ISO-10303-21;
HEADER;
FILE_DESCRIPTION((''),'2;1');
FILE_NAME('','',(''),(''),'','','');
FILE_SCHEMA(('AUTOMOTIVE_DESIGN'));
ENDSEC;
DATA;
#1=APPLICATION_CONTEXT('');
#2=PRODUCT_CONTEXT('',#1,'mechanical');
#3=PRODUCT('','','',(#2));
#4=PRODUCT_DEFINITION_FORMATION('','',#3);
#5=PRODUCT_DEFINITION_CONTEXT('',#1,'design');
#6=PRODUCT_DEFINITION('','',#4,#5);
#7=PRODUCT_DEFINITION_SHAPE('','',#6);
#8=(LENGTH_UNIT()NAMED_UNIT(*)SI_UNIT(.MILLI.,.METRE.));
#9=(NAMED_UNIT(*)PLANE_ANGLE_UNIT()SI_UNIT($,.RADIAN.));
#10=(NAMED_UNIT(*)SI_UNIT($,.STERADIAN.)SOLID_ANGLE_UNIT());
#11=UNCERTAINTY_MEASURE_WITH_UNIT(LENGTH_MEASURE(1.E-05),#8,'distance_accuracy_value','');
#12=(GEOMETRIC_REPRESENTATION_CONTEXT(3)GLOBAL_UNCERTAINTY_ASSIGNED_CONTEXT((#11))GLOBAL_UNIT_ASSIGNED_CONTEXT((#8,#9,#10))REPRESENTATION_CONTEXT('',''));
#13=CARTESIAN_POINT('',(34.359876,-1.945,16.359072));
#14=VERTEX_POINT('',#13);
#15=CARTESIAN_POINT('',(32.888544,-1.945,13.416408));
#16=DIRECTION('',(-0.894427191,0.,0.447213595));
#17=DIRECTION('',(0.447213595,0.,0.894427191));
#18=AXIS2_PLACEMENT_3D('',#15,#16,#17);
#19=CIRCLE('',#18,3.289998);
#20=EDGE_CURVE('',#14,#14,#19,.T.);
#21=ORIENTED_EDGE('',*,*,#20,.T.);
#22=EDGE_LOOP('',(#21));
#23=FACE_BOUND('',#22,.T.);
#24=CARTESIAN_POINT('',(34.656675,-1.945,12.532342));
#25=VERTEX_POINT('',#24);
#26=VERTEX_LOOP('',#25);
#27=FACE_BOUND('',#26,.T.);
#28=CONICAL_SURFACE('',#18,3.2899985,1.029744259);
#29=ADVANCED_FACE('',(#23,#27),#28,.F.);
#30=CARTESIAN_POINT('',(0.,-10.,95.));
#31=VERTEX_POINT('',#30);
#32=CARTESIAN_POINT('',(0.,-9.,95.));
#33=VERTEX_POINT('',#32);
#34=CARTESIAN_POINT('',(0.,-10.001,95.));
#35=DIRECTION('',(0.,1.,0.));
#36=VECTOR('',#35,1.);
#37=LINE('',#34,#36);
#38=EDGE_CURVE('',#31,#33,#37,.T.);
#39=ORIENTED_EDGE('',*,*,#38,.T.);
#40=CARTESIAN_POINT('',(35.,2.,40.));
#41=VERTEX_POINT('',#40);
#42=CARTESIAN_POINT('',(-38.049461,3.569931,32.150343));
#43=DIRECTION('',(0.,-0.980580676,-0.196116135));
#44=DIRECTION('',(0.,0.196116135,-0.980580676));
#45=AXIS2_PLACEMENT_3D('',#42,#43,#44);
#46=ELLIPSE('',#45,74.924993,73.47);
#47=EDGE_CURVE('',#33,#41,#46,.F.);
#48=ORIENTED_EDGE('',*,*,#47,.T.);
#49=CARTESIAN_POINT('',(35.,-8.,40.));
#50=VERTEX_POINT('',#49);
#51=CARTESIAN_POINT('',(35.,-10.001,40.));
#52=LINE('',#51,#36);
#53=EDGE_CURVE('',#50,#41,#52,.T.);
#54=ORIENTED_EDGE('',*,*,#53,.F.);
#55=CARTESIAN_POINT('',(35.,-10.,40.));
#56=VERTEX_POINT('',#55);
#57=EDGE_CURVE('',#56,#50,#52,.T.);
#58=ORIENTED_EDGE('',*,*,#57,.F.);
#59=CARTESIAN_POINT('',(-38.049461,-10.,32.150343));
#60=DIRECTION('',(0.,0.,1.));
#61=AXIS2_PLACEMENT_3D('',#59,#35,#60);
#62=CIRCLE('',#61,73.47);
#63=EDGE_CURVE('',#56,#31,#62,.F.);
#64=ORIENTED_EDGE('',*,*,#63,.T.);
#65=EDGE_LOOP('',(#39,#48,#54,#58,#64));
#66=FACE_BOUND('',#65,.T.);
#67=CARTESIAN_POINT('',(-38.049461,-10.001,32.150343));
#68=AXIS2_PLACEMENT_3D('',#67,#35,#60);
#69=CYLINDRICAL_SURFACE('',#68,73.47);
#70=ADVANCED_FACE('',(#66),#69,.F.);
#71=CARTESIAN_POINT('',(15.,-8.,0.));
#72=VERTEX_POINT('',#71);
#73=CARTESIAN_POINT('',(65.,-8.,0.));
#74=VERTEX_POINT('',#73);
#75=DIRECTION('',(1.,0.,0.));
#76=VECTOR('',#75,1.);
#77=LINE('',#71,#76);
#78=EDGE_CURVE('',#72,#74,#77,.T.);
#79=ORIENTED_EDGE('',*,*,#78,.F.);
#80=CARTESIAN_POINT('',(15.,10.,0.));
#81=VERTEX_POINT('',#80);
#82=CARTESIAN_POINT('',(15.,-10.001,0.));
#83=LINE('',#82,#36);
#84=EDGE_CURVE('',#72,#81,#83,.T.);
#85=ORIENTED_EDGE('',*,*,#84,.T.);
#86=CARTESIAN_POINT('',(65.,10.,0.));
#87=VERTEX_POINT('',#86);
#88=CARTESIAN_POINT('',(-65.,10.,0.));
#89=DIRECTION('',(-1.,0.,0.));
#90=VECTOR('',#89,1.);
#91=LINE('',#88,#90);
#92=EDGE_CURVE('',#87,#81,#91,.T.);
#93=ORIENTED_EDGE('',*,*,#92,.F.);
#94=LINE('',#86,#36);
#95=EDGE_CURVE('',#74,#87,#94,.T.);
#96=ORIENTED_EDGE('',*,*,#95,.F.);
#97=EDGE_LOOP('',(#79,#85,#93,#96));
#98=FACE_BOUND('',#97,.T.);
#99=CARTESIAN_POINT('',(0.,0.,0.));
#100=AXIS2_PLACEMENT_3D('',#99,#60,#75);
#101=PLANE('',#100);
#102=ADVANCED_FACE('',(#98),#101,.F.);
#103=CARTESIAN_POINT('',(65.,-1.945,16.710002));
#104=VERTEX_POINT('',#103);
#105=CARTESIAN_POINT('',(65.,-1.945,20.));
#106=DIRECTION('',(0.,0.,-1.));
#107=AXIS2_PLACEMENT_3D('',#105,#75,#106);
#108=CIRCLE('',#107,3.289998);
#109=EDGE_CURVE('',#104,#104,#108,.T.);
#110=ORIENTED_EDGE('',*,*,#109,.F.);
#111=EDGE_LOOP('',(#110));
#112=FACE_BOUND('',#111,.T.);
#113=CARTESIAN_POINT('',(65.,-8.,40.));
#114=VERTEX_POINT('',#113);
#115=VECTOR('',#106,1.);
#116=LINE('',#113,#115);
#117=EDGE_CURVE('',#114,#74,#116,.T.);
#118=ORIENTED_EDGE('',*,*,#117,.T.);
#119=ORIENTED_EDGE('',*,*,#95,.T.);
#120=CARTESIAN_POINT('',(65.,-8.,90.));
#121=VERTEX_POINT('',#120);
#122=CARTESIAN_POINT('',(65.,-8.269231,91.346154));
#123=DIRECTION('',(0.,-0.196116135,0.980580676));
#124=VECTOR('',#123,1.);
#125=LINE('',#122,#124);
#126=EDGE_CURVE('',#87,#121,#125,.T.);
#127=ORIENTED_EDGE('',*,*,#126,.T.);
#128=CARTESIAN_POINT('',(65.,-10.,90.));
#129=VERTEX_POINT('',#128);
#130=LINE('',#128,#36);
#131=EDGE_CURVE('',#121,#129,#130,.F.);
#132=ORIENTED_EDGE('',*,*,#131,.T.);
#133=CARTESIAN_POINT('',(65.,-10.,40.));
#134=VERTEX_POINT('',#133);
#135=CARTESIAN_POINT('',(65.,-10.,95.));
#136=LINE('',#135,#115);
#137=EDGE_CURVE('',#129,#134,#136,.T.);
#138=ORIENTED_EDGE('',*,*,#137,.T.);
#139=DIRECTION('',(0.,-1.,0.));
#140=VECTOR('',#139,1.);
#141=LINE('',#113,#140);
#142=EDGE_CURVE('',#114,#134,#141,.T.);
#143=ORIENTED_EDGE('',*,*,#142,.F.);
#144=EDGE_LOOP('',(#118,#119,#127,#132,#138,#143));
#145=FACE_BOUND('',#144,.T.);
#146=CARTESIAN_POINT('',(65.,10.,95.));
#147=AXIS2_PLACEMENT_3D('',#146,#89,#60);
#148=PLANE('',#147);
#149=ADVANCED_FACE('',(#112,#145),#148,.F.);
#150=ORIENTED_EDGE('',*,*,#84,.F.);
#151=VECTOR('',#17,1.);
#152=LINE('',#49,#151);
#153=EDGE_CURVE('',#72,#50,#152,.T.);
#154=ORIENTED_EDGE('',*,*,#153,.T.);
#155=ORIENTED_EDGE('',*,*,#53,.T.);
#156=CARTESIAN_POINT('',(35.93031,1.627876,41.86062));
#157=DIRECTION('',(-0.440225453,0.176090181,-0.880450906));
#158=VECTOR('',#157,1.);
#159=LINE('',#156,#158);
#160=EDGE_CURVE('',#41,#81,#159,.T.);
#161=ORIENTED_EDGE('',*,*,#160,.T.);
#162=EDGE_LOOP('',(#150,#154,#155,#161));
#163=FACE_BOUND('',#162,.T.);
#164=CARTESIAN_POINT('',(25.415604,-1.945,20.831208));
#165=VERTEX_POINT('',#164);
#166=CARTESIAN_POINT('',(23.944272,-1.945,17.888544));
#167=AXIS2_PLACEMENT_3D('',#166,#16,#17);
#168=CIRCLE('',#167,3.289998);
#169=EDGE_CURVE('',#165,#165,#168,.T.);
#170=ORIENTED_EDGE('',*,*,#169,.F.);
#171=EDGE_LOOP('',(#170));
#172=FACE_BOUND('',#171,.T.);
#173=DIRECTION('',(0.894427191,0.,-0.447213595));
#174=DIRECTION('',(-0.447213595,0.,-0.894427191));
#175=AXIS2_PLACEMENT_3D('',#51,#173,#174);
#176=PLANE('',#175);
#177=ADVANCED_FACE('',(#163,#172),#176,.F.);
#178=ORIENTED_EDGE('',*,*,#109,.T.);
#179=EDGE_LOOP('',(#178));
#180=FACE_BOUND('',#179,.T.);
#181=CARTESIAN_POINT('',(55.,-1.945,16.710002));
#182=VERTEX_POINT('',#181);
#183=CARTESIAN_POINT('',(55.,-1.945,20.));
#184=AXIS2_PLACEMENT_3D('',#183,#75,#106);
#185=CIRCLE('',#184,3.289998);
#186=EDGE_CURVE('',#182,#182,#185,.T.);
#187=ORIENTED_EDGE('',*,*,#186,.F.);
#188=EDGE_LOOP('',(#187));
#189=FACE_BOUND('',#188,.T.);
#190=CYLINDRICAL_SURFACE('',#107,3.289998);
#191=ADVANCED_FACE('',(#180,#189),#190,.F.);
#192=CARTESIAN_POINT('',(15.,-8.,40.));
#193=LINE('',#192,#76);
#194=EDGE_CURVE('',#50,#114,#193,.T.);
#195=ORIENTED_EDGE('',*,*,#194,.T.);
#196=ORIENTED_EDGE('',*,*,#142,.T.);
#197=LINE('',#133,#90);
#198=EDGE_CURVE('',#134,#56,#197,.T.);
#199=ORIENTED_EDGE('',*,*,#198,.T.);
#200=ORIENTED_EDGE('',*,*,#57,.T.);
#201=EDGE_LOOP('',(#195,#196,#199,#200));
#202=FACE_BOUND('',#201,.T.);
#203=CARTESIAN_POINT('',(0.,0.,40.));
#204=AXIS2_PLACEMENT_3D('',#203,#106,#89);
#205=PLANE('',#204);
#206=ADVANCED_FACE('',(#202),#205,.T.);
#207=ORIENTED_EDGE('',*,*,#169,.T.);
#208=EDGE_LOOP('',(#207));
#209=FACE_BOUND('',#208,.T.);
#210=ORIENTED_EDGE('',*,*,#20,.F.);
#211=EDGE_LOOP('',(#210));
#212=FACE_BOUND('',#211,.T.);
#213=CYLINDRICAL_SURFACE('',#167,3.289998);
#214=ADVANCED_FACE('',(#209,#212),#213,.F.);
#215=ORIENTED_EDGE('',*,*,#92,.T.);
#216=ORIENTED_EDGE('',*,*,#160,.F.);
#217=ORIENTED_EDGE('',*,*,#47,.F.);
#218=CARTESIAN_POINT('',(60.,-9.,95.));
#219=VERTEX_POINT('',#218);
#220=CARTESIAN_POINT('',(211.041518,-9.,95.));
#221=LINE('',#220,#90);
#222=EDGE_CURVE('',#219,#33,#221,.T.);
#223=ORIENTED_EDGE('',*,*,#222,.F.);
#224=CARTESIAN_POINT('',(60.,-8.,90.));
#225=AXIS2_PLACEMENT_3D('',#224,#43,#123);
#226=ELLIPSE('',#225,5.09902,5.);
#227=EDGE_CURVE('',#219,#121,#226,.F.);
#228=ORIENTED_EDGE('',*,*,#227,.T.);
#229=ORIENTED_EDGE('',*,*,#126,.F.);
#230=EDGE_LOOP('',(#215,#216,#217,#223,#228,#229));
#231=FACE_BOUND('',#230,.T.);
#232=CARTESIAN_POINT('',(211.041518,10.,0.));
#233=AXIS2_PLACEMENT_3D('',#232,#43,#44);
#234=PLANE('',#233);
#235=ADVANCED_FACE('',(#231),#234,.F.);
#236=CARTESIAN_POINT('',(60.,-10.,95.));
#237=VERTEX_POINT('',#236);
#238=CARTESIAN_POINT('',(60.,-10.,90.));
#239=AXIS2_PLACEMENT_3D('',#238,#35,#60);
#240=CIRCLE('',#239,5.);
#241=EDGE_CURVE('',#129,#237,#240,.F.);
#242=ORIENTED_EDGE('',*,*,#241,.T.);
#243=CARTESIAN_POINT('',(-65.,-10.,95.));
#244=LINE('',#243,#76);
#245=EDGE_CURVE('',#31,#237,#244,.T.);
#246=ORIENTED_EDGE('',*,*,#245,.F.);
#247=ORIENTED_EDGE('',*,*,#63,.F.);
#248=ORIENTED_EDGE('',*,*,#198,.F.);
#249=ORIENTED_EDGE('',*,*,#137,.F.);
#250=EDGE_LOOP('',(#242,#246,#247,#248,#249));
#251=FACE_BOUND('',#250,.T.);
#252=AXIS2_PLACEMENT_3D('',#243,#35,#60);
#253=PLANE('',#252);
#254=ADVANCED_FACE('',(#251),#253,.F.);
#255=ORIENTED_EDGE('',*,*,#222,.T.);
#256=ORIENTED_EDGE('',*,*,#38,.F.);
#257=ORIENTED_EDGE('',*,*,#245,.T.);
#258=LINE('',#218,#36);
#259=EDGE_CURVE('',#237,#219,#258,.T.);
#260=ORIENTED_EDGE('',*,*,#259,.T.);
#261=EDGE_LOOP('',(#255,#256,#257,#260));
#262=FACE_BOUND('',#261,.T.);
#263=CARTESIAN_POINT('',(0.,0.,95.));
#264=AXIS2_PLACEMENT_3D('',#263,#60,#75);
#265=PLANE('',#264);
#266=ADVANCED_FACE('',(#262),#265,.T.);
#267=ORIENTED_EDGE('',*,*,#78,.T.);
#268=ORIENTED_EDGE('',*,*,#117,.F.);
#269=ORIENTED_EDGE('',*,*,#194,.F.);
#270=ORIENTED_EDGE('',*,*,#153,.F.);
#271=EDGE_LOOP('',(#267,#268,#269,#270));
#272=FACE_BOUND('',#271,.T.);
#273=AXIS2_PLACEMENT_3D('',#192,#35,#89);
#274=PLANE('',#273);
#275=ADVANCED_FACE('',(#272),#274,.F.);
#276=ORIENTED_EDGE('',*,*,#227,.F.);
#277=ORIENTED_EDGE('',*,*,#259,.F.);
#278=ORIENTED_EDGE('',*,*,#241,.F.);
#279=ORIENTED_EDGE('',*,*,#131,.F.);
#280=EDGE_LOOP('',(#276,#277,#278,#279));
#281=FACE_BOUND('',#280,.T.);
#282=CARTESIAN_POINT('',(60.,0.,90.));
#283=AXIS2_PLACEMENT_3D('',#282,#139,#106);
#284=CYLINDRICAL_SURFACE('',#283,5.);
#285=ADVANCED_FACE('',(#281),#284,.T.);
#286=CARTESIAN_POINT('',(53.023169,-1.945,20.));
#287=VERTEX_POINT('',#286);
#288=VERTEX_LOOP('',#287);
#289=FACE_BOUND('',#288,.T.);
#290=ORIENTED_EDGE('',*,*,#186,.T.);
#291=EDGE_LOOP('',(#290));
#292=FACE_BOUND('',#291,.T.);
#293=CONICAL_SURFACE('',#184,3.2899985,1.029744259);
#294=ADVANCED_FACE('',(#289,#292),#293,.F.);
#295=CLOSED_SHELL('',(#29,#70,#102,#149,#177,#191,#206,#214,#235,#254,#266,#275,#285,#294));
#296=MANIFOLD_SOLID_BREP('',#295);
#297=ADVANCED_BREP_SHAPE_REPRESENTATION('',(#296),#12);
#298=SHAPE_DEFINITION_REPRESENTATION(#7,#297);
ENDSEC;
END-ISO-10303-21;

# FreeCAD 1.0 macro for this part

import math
import FreeCAD as App
import Part
import Sketcher


def edges_at(feature, points):
    """Names of the edges that pass closest to the given points."""
    edges = feature.Shape.Edges
    near = lambda p: min(range(len(edges)), key=lambda i: edges[i].distToShape(Part.Vertex(*p))[0])
    return sorted({f"Edge{near(p) + 1}" for p in points})

doc = App.newDocument("Part")
body = doc.addObject("PartDesign::Body", "Body")

# Sketch on XY plane
sketch1 = body.newObject("Sketcher::SketchObject", "Sketch")
sketch1.AttachmentSupport = (doc.getObject("XY_Plane"), [""])
sketch1.MapMode = "FlatFace"
sketch1.addGeometry([
    Part.LineSegment(App.Vector(-65, 10, 0), App.Vector(-65, -10, 0)),
    Part.LineSegment(App.Vector(-65, -10, 0), App.Vector(65, -10, 0)),
    Part.LineSegment(App.Vector(65, -10, 0), App.Vector(65, 10, 0)),
    Part.LineSegment(App.Vector(65, 10, 0), App.Vector(-65, 10, 0)),
], False)
sketch1.addConstraint([
    Sketcher.Constraint("Coincident", 0, 2, 1, 1),
    Sketcher.Constraint("Coincident", 1, 2, 2, 1),
    Sketcher.Constraint("Coincident", 2, 2, 3, 1),
    Sketcher.Constraint("Coincident", 3, 2, 0, 1),
    Sketcher.Constraint("Vertical", 0),
    Sketcher.Constraint("Horizontal", 1),
    Sketcher.Constraint("Vertical", 2),
    Sketcher.Constraint("Horizontal", 3),
    Sketcher.Constraint("Symmetric", 0, 2, 2, 2, -1, 1),
    Sketcher.Constraint("DistanceX", 1, 1, 1, 2, 130.0),
    Sketcher.Constraint("DistanceY", 0, 2, 0, 1, 20.0),
])
pad1 = body.newObject("PartDesign::Pad", "Pad")
pad1.Profile = sketch1
pad1.Length = 95

# Sketch on XZ plane
sketch2 = body.newObject("Sketcher::SketchObject", "Sketch001")
sketch2.AttachmentSupport = (doc.getObject("XZ_Plane"), [""])
sketch2.MapMode = "FlatFace"
sketch2.AttachmentOffset = App.Placement(App.Vector(0, 0, -10), App.Rotation())
sketch2.addGeometry([
    Part.LineSegment(App.Vector(15, 0, 0), App.Vector(-65, 0, 0)),  # 0
    Part.LineSegment(App.Vector(-65, 0, 0), App.Vector(-65, 95, 0)),  # 1
    Part.LineSegment(App.Vector(-65, 95, 0), App.Vector(0, 95, 0)),  # 2
    Part.ArcOfCircle(Part.Circle(App.Vector(-38, 32, 0), App.Vector(0, 0, 1), 73), math.radians(6), math.radians(59)),  # 3
    Part.LineSegment(App.Vector(35, 40, 0), App.Vector(15, 0, 0)),  # 4
], False)
sketch2.addConstraint([
    Sketcher.Constraint("Coincident", 0, 2, 1, 1),
    Sketcher.Constraint("Coincident", 1, 2, 2, 1),
    Sketcher.Constraint("Coincident", 2, 2, 3, 2),
    Sketcher.Constraint("Coincident", 3, 1, 4, 1),
    Sketcher.Constraint("Coincident", 4, 2, 0, 1),
    Sketcher.Constraint("Horizontal", 0),
    Sketcher.Constraint("Vertical", 1),
    Sketcher.Constraint("Horizontal", 2),
    Sketcher.Constraint("PointOnObject", 0, 2, -1),
    Sketcher.Constraint("PointOnObject", 2, 2, -2),
    Sketcher.Constraint("DistanceX", 0, 2, 0, 1, 80.0),
    Sketcher.Constraint("DistanceX", 2, 1, 2, 2, 65.0),
    Sketcher.Constraint("DistanceY", 1, 1, 1, 2, 95.0),
    Sketcher.Constraint("Radius", 3, 73.47),
    Sketcher.Constraint("DistanceX", -1, 1, 3, 1, 35.0),
    Sketcher.Constraint("DistanceY", -1, 1, 3, 1, 40.0),
])
pocket1 = body.newObject("PartDesign::Pocket", "Pocket")
pocket1.Profile = sketch2
pocket1.Type = "UpToFirst"
pocket1.Reversed = True

# Sketch on YZ plane
sketch3 = body.newObject("Sketcher::SketchObject", "Sketch002")
sketch3.AttachmentSupport = (doc.getObject("YZ_Plane"), [""])
sketch3.MapMode = "FlatFace"
sketch3.AttachmentOffset = App.Placement(App.Vector(0, 0, 65), App.Rotation())
sketch3.addGeometry([
    Part.LineSegment(App.Vector(-49, 295, 0), App.Vector(50, -200, 0)),
    Part.LineSegment(App.Vector(50, -200, 0), App.Vector(450, -120, 0)),
    Part.LineSegment(App.Vector(450, -120, 0), App.Vector(351, 375, 0)),
    Part.LineSegment(App.Vector(351, 375, 0), App.Vector(-49, 295, 0)),
], False)
sketch3.addConstraint([
    Sketcher.Constraint("Coincident", 0, 2, 1, 1),
    Sketcher.Constraint("Coincident", 1, 2, 2, 1),
    Sketcher.Constraint("Coincident", 2, 2, 3, 1),
    Sketcher.Constraint("Coincident", 3, 2, 0, 1),
    Sketcher.Constraint("Perpendicular", 0, 1),
    Sketcher.Constraint("Perpendicular", 1, 2),
    Sketcher.Constraint("Perpendicular", 2, 3),
    Sketcher.Constraint("DistanceY", 1, 2, -1, 1, 120.120081),
    Sketcher.Constraint("DistanceX", -1, 1, 2, 2, 351.360242),
    Sketcher.Constraint("DistanceY", -1, 1, 2, 2, 375.280188),
    Sketcher.Constraint("DistanceX", 0, 2, 1, 2, 400.400269),
    Sketcher.Constraint("Distance", 0, 505.211128),
])
pocket2 = body.newObject("PartDesign::Pocket", "Pocket001")
pocket2.Profile = sketch3
pocket2.Type = "ThroughAll"
pocket2.Midplane = True

# Sketch on YZ plane
sketch4 = body.newObject("Sketcher::SketchObject", "Sketch003")
sketch4.AttachmentSupport = (doc.getObject("YZ_Plane"), [""])
sketch4.MapMode = "FlatFace"
sketch4.AttachmentOffset = App.Placement(App.Vector(0, 0, 65), App.Rotation())
sketch4.addGeometry(Part.Circle(App.Vector(-1.9, 20, 0), App.Vector(0, 0, 1), 3.3), False)
sketch4.addConstraint([
    Sketcher.Constraint("DistanceY", -1, 1, 0, 3, 20.0),
    Sketcher.Constraint("Diameter", 0, 6.579997),
    Sketcher.Constraint("DistanceX", 0, 3, -1, 1, 1.945),
])
doc.recompute()
hole = body.newObject("PartDesign::Hole", "Hole")
hole.Profile = sketch4
hole.ThreadType = "None"
hole.Diameter = 6.579997
hole.DepthType = "Dimension"
hole.Depth = 10
hole.DrillPoint = "Angled"
hole.DrillPointAngle = 118

# Sketch on an angled plane
sketch5 = body.newObject("Sketcher::SketchObject", "Sketch004")
sketch5.Placement = App.Placement(App.Vector(12, 0, -6), App.Rotation(App.Vector(0.447213595, 0, 0.894427191), App.Vector(0, 1, 0), App.Vector(-0.894427191, 0, 0.447213595), "ZXY"))
sketch5.addGeometry(Part.Circle(App.Vector(26.7, -1.9, 0), App.Vector(0, 0, 1), 3.3), False)
sketch5.addConstraint([
    Sketcher.Constraint("Diameter", 0, 6.579997),
    Sketcher.Constraint("DistanceY", 0, 3, -1, 1, 1.945),
    Sketcher.Constraint("DistanceX", -1, 1, 0, 3, 26.708204),
])
doc.recompute()
hole2 = body.newObject("PartDesign::Hole", "Hole001")
hole2.Profile = sketch5
hole2.ThreadType = "None"
hole2.Diameter = 6.579997
hole2.DepthType = "Dimension"
hole2.Depth = 10
hole2.DrillPoint = "Angled"
hole2.DrillPointAngle = 118
doc.recompute()

fillet = body.newObject("PartDesign::Fillet", "Fillet")
fillet.Base = (hole2, edges_at(hole2, [(65, -9.5, 95)]))
fillet.Radius = 5

# Sketch on XY plane
sketch6 = body.newObject("Sketcher::SketchObject", "Sketch005")
sketch6.AttachmentSupport = (doc.getObject("XY_Plane"), [""])
sketch6.MapMode = "FlatFace"
sketch6.addGeometry([
    Part.LineSegment(App.Vector(65, -8, 0), App.Vector(65, -10, 0)),
    Part.LineSegment(App.Vector(65, -10, 0), App.Vector(15, -10, 0)),
    Part.LineSegment(App.Vector(15, -10, 0), App.Vector(15, -8, 0)),
    Part.LineSegment(App.Vector(15, -8, 0), App.Vector(65, -8, 0)),
], False)
sketch6.addConstraint([
    Sketcher.Constraint("Coincident", 0, 2, 1, 1),
    Sketcher.Constraint("Coincident", 1, 2, 2, 1),
    Sketcher.Constraint("Coincident", 2, 2, 3, 1),
    Sketcher.Constraint("Coincident", 3, 2, 0, 1),
    Sketcher.Constraint("Vertical", 0),
    Sketcher.Constraint("Horizontal", 1),
    Sketcher.Constraint("Vertical", 2),
    Sketcher.Constraint("Horizontal", 3),
    Sketcher.Constraint("DistanceX", 1, 2, 1, 1, 50.0),
    Sketcher.Constraint("DistanceY", 0, 2, 0, 1, 2.0),
    Sketcher.Constraint("DistanceX", -1, 1, 0, 2, 65.0),
    Sketcher.Constraint("DistanceY", 0, 2, -1, 1, 10.0),
])
pocket3 = body.newObject("PartDesign::Pocket", "Pocket002")
pocket3.Profile = sketch6
pocket3.Length = 40
pocket3.Reversed = True

doc.recompute()
